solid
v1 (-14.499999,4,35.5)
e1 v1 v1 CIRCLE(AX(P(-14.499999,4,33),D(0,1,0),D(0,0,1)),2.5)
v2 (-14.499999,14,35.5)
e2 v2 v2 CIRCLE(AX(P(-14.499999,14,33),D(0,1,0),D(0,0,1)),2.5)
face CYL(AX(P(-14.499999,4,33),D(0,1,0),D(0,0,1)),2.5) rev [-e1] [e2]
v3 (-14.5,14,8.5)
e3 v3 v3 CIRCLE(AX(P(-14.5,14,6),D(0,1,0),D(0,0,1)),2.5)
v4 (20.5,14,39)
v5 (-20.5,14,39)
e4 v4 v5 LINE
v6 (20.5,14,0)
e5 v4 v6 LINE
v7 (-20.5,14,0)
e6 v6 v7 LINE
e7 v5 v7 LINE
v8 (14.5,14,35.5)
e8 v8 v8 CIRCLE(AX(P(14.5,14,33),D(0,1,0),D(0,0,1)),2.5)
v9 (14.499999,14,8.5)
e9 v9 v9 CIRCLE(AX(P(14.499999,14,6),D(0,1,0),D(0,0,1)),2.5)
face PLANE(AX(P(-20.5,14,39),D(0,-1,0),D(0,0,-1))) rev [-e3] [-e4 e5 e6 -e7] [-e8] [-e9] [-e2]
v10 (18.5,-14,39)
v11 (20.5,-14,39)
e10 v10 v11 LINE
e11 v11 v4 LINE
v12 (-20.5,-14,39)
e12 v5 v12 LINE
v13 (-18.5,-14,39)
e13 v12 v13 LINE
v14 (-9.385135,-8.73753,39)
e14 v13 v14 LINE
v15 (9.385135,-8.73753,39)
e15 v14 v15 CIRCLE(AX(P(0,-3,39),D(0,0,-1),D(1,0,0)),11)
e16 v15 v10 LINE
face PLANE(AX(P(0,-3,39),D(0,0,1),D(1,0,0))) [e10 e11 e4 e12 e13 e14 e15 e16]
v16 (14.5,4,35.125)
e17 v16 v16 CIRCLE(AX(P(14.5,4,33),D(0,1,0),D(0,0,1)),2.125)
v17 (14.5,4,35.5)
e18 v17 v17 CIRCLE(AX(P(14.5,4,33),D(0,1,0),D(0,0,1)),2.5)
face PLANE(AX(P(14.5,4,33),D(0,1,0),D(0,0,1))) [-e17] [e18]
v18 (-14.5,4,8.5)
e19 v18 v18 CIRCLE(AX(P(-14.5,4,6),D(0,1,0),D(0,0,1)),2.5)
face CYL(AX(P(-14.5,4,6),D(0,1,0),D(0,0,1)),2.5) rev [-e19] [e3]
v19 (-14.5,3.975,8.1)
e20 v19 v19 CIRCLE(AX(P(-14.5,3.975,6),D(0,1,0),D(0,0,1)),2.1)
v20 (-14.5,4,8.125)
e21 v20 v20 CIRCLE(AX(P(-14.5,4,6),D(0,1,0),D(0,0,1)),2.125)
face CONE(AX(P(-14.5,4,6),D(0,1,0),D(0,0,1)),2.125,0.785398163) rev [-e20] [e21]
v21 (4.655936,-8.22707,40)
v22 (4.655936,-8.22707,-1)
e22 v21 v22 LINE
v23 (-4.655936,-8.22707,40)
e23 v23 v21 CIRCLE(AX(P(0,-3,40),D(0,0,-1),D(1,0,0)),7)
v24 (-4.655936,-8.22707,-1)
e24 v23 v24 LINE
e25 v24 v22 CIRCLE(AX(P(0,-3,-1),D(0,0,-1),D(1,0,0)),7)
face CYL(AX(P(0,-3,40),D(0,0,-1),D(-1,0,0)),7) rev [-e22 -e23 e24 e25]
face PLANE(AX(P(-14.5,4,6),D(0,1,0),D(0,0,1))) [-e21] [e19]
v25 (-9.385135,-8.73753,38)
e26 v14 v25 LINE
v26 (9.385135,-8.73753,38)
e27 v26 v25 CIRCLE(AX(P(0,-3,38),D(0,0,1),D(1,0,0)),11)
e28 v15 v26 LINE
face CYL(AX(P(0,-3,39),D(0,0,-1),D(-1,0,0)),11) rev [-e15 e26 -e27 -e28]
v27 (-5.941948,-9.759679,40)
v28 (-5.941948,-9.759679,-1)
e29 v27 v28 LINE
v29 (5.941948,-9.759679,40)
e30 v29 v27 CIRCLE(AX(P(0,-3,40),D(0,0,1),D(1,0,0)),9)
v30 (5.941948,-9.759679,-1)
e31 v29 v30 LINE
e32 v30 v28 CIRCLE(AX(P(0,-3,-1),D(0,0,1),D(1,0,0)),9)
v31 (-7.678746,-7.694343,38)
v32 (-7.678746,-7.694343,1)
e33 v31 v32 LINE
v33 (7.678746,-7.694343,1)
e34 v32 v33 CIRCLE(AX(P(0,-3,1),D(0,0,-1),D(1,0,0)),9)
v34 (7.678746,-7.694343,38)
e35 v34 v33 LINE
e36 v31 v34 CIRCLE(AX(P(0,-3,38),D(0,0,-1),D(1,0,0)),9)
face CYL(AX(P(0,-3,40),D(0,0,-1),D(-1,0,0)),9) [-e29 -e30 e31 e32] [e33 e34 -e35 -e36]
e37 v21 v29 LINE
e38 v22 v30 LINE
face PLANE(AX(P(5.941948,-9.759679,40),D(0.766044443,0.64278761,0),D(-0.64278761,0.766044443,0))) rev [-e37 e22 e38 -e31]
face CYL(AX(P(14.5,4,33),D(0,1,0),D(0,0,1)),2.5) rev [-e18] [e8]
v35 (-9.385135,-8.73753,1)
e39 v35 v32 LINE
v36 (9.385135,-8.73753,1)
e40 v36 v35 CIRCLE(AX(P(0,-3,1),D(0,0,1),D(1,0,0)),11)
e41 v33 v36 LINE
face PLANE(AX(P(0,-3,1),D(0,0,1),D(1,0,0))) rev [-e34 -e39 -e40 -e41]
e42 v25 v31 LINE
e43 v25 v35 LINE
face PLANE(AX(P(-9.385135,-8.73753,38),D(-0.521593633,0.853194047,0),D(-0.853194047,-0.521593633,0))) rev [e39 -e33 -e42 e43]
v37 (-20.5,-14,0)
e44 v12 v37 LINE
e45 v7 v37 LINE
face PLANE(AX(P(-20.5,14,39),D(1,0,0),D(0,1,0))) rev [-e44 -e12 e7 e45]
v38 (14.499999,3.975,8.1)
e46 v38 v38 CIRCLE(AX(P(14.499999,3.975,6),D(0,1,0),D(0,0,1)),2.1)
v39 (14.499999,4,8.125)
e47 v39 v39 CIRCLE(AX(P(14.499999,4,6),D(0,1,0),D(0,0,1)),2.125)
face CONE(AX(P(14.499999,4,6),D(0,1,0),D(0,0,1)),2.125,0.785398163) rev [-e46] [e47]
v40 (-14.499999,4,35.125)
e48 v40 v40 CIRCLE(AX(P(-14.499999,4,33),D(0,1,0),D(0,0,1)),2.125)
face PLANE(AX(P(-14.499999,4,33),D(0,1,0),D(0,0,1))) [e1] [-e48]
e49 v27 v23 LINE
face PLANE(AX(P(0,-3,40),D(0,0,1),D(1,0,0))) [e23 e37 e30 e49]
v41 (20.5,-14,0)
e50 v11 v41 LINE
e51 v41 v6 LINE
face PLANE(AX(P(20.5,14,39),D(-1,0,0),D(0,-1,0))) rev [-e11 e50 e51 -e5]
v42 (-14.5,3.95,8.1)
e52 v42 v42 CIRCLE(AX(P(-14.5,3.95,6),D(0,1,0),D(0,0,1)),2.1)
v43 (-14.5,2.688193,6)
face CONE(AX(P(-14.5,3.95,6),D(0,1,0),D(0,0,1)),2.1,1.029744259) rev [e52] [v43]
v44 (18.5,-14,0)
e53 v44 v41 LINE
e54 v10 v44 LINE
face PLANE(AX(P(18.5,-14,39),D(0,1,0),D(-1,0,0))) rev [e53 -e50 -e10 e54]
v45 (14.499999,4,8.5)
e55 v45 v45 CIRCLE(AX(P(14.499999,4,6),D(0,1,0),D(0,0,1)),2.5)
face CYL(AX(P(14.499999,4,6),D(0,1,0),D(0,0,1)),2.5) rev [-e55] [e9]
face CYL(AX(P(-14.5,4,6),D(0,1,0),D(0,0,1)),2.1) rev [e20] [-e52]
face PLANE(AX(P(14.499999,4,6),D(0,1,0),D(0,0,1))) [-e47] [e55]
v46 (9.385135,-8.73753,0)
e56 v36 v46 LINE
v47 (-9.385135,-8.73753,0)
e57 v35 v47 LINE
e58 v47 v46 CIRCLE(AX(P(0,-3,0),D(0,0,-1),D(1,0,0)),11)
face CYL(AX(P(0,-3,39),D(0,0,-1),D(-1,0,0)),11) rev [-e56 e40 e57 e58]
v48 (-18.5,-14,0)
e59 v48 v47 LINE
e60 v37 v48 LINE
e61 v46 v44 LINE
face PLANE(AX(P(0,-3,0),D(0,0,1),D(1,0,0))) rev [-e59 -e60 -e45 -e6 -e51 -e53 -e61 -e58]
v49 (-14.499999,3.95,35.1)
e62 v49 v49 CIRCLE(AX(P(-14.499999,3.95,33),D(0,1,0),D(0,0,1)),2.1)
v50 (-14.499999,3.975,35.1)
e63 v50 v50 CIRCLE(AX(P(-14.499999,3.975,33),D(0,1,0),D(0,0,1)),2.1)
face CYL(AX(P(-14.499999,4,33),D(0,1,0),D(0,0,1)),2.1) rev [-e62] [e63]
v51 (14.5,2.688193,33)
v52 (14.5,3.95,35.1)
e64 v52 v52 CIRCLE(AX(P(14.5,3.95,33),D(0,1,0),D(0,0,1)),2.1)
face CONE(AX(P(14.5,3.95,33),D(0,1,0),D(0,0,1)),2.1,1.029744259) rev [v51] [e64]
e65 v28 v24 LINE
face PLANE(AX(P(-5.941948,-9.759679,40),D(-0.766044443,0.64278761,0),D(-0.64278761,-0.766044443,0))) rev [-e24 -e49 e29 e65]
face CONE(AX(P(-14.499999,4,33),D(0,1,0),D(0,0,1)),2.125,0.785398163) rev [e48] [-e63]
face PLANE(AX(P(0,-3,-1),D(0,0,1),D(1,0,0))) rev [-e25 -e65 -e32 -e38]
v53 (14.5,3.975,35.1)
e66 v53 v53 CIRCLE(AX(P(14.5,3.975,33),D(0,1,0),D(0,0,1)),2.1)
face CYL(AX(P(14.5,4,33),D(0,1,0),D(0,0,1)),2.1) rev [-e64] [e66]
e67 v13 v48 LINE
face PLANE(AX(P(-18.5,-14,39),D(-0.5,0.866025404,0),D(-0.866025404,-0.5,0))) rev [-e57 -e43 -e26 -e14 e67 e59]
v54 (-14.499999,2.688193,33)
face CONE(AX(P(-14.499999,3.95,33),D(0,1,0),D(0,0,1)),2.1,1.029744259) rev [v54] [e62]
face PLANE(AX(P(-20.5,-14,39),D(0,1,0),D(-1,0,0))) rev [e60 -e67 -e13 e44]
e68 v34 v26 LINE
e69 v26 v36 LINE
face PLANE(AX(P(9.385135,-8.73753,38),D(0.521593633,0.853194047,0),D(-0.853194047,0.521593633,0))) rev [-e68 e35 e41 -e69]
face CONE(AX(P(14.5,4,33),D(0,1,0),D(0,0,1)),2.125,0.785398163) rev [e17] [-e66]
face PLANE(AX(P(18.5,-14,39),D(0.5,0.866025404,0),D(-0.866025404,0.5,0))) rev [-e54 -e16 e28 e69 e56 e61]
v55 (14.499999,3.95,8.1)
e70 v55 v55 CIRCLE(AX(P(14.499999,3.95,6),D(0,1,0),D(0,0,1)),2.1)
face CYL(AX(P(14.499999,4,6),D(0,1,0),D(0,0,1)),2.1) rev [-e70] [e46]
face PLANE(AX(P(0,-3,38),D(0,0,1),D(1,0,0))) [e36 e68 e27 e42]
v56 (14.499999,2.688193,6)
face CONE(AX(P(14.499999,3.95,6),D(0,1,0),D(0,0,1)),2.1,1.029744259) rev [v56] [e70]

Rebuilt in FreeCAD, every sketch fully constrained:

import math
import FreeCAD as App
import Part
import Sketcher

V = App.Vector
Q = App.Units.Quantity


def add_polygon(sketch, points):
    """Adds a closed chain of lines whose ends are joined by coincident constraints."""
    first, n = sketch.GeometryCount, len(points)
    for a, b in zip(points, points[1:] + points[:1]):
        sketch.addGeometry(Part.LineSegment(App.Vector(*a, 0), App.Vector(*b, 0)), False)
    for i in range(n):
        sketch.addConstraint(Sketcher.Constraint("Coincident", first + i, 2, first + (i + 1) % n, 1))

doc = App.newDocument("Part")
params = doc.addObject("Spreadsheet::Sheet", "Params")
for row, (alias, value) in enumerate([
    ("sketch1_radius", "11 mm"),
    ("sketch1_width", "41 mm"),
    ("sketch1_width2", "2 mm"),
    ("sketch1_height", "28 mm"),
    ("pad1_length", "39 mm"),
    ("sketch2_radius", "9 mm"),
    ("sketch2_radius2", "11 mm"),
    ("pad2_length", "37 mm"),
    ("sketch3_radius", "7 mm"),
    ("sketch3_radius2", "9 mm"),
    ("pad3_length", "41 mm"),
    ("sketch4_diameter", "5 mm"),
    ("pocket1_length", "10 mm"),
    ("groove_angle", "360 deg"),
    ("linearpattern_pitch", "27 mm"),
    ("linearpattern2_pitch", "39.623224 mm"),
    ("linearpattern3_pitch", "28.999999 mm"),
], start=1):
    params.set(f"A{row}", alias)
    params.set(f"B{row}", "=" + value)
    params.setAlias(f"B{row}", alias)

body = doc.addObject("PartDesign::Body", "Body")

sketch1 = body.newObject("Sketcher::SketchObject", "Sketch")
sketch1.AttachmentSupport = (doc.getObject("XY_Plane"), [""])
sketch1.MapMode = "FlatFace"
sketch1.addGeometry([
    Part.LineSegment(V(20.5, 14, 0), V(-20.5, 14, 0)),
    Part.LineSegment(V(-20.5, 14, 0), V(-20.5, -14, 0)),
    Part.LineSegment(V(-20.5, -14, 0), V(-18.5, -14, 0)),
    Part.LineSegment(V(-18.5, -14, 0), V(-9.385135, -8.73753, 0)),
    Part.ArcOfCircle(Part.Circle(V(0, -3, 0), V(0, 0, 1), 11), math.radians(-31.43921), math.radians(211.43921)),
    Part.LineSegment(V(9.385135, -8.73753, 0), V(18.5, -14, 0)),
    Part.LineSegment(V(18.5, -14, 0), V(20.5, -14, 0)),
    Part.LineSegment(V(20.5, -14, 0), V(20.5, 14, 0)),
], False)
sketch1.addConstraint([
    Sketcher.Constraint("Coincident", 0, 2, 1, 1),
    Sketcher.Constraint("Coincident", 1, 2, 2, 1),
    Sketcher.Constraint("Coincident", 2, 2, 3, 1),
    Sketcher.Constraint("Coincident", 3, 2, 4, 2),
    Sketcher.Constraint("Coincident", 4, 1, 5, 1),
    Sketcher.Constraint("Coincident", 5, 2, 6, 1),
    Sketcher.Constraint("Coincident", 6, 2, 7, 1),
    Sketcher.Constraint("Coincident", 7, 2, 0, 1),
    Sketcher.Constraint("Horizontal", 0),
    Sketcher.Constraint("Vertical", 1),
    Sketcher.Constraint("Horizontal", 2),
    Sketcher.Constraint("Horizontal", 6),
    Sketcher.Constraint("Vertical", 7),
    Sketcher.Constraint("Symmetric", 0, 2, 6, 2, -1, 1),
    Sketcher.Constraint("Symmetric", 3, 2, 4, 1, -2),
    Sketcher.Constraint("Symmetric", 2, 2, 5, 2, -2),
    Sketcher.Constraint("Radius", 4, 11.0),
    Sketcher.Constraint("DistanceX", 0, 2, 0, 1, 41.0),
    Sketcher.Constraint("DistanceX", 2, 1, 2, 2, 2.0),
    Sketcher.Constraint("DistanceY", 1, 2, 1, 1, 28.0),
    Sketcher.Constraint("Angle", 3, Q("30 deg")),
    Sketcher.Constraint("DistanceY", 4, 3, -1, 1, 3.0),
])
sketch1.setExpression("Constraints[16]", "Params.sketch1_radius")
sketch1.setExpression("Constraints[17]", "Params.sketch1_width")
sketch1.setExpression("Constraints[18]", "Params.sketch1_width2")
sketch1.setExpression("Constraints[19]", "Params.sketch1_height")
pad1 = body.newObject("PartDesign::Pad", "Pad")
pad1.Profile = sketch1
pad1.setExpression("Length", "Params.pad1_length")
body2 = doc.addObject("PartDesign::Body", "Body001")

sketch2 = body2.newObject("Sketcher::SketchObject", "Sketch001")
sketch2.AttachmentSupport = (doc.getObject("XY_Plane001"), [""])
sketch2.MapMode = "FlatFace"
sketch2.AttachmentOffset = App.Placement(V(0, 0, 1), App.Rotation())
sketch2.addGeometry([
    Part.LineSegment(V(-9.385135, -8.73753, 0), V(-7.678746, -7.694343, 0)),
    Part.ArcOfCircle(Part.Circle(V(0, -3, 0), V(0, 0, 1), 9), math.radians(-31.43921), math.radians(211.43921)),
    Part.LineSegment(V(7.678746, -7.694343, 0), V(9.385135, -8.73753, 0)),
    Part.ArcOfCircle(Part.Circle(V(0, -3, 0), V(0, 0, 1), 11), math.radians(-31.43921), math.radians(211.43921)),
], False)
sketch2.addConstraint([
    Sketcher.Constraint("Coincident", 0, 2, 1, 2),
    Sketcher.Constraint("Coincident", 1, 1, 2, 1),
    Sketcher.Constraint("Coincident", 2, 2, 3, 1),
    Sketcher.Constraint("Coincident", 3, 2, 0, 1),
    Sketcher.Constraint("Coincident", 3, 3, 1, 3),
    Sketcher.Constraint("Symmetric", 0, 2, 1, 1, -2),
    Sketcher.Constraint("Horizontal", 2, 2, 3, 2),
    Sketcher.Constraint("Radius", 1, 9.0),
    Sketcher.Constraint("Radius", 3, 11.0),
    Sketcher.Constraint("DistanceY", 1, 3, -1, 1, 3.0),
    Sketcher.Constraint("DistanceY", 2, 2, -1, 1, 8.73753),
    Sketcher.Constraint("DistanceX", 1, 1, 2, 2, 1.706388),
])
sketch2.setExpression("Constraints[7]", "Params.sketch2_radius")
sketch2.setExpression("Constraints[8]", "Params.sketch2_radius2")
pad2 = body2.newObject("PartDesign::Pad", "Pad001")
pad2.Profile = sketch2
pad2.setExpression("Length", "Params.pad2_length")
doc.recompute()

boolean = body.newObject("PartDesign::Boolean", "Boolean")
boolean.Type = "Fuse"
boolean.addObjects([body2])

sketch3 = body.newObject("Sketcher::SketchObject", "Sketch002")
sketch3.AttachmentSupport = (doc.getObject("XY_Plane"), [""])
sketch3.MapMode = "FlatFace"
sketch3.AttachmentOffset = App.Placement(V(0, 0, -1), App.Rotation())
sketch3.addGeometry([
    Part.LineSegment(V(-5.941948, -9.759679, 0), V(-4.655936, -8.22707, 0)),
    Part.ArcOfCircle(Part.Circle(V(0, -3, 0), V(0, 0, 1), 7), math.radians(-48.307412), math.radians(228.307412)),
    Part.LineSegment(V(4.655936, -8.22707, 0), V(5.941948, -9.759679, 0)),
    Part.ArcOfCircle(Part.Circle(V(0, -3, 0), V(0, 0, 1), 9), math.radians(-48.683619), math.radians(228.683619)),
], False)
sketch3.addConstraint([
    Sketcher.Constraint("Coincident", 0, 2, 1, 2),
    Sketcher.Constraint("Coincident", 1, 1, 2, 1),
    Sketcher.Constraint("Coincident", 2, 2, 3, 1),
    Sketcher.Constraint("Coincident", 3, 2, 0, 1),
    Sketcher.Constraint("Coincident", 3, 3, 1, 3),
    Sketcher.Constraint("Symmetric", 0, 2, 1, 1, -2),
    Sketcher.Constraint("Horizontal", 2, 2, 3, 2),
    Sketcher.Constraint("Radius", 1, 7.0),
    Sketcher.Constraint("Radius", 3, 9.0),
    Sketcher.Constraint("Angle", 0, Q("50 deg")),
    Sketcher.Constraint("DistanceY", 1, 3, -1, 1, 3.0),
    Sketcher.Constraint("Distance", 0, 2.000679),
])
sketch3.setExpression("Constraints[7]", "Params.sketch3_radius")
sketch3.setExpression("Constraints[8]", "Params.sketch3_radius2")
pad3 = body.newObject("PartDesign::Pad", "Pad002")
pad3.Profile = sketch3
pad3.setExpression("Length", "Params.pad3_length")

sketch4 = body.newObject("Sketcher::SketchObject", "Sketch003")
sketch4.AttachmentSupport = (doc.getObject("XZ_Plane"), [""])
sketch4.MapMode = "FlatFace"
sketch4.AttachmentOffset = App.Placement(V(0, 0, -14), App.Rotation())
sketch4.addGeometry([
    Part.Circle(V(-14.5, 6, 0), V(0, 0, 1), 2.5),
    Part.Circle(V(14.499999, 6, 0), V(0, 0, 1), 2.5),
    Part.Circle(V(14.5, 33, 0), V(0, 0, 1), 2.5),
    Part.Circle(V(-14.499999, 33, 0), V(0, 0, 1), 2.5),
], False)
sketch4.addConstraint([
    Sketcher.Constraint("Equal", 0, 1),
    Sketcher.Constraint("Equal", 1, 2),
    Sketcher.Constraint("Equal", 2, 3),
    Sketcher.Constraint("Symmetric", 0, 3, 1, 3, -2),
    Sketcher.Constraint("Symmetric", 2, 3, 3, 3, -2),
    Sketcher.Constraint("Vertical", 1, 3, 2, 3),
    Sketcher.Constraint("Diameter", 0, 5.0),
    Sketcher.Constraint("DistanceY", -1, 1, 0, 3, 6.0),
    Sketcher.Constraint("DistanceY", -1, 1, 2, 3, 33.0),
    Sketcher.Constraint("DistanceX", 0, 3, 1, 3, 28.999999),
])
sketch4.setExpression("Constraints[6]", "Params.sketch4_diameter")
pocket1 = body.newObject("PartDesign::Pocket", "Pocket")
pocket1.Profile = sketch4
pocket1.setExpression("Length", "Params.pocket1_length")
pocket1.Reversed = True

sketch5 = body.newObject("Sketcher::SketchObject", "Sketch004")
sketch5.AttachmentSupport = (doc.getObject("YZ_Plane"), [""])
sketch5.MapMode = "FlatFace"
sketch5.AttachmentOffset = App.Placement(V(0, 0, -14.499999), App.Rotation())
add_polygon(sketch5, [(2.688193, 33), (4, 33), (4, 35.125), (3.975, 35.1), (3.95, 35.1)])
sketch5.addGeometry(Part.LineSegment(V(4, 33, 0), V(2.688193, 33, 0)), True)
sketch5.addConstraint([
    Sketcher.Constraint("Horizontal", 0),
    Sketcher.Constraint("Vertical", 1),
    Sketcher.Constraint("Horizontal", 3),
    Sketcher.Constraint("Horizontal", 5),
    Sketcher.Constraint("Coincident", 5, 1, 0, 2),
    Sketcher.Constraint("Equal", 0, 5),
    Sketcher.Constraint("Angle", 2, Q("-135 deg")),
    Sketcher.Constraint("Angle", 4, Q("-121 deg")),
    Sketcher.Constraint("DistanceX", -1, 1, 0, 2, 4.0),
    Sketcher.Constraint("DistanceY", -1, 1, 0, 2, 33.0),
    Sketcher.Constraint("DistanceY", -1, 1, 2, 2, 35.1),
    Sketcher.Constraint("DistanceX", 3, 2, 3, 1, 0.025),
    Sketcher.Constraint("DistanceY", 1, 1, 1, 2, 2.125),
])
groove = body.newObject("PartDesign::Groove", "Groove")
groove.Profile = sketch5
groove.ReferenceAxis = (sketch5, ["Axis0"])
groove.setExpression("Angle", "Params.groove_angle")
doc.recompute()

linearpattern = body.newObject("PartDesign::LinearPattern", "LinearPattern")
linearpattern.Originals = [groove]
linearpattern.Direction = (doc.getObject("Z_Axis"), [""])
linearpattern.Mode = "offset"
linearpattern.setExpression("Offset", "Params.linearpattern_pitch")
linearpattern.Occurrences = 2
linearpattern.Reversed = True
body.Tip = linearpattern
doc.recompute()

datumline = body.newObject("PartDesign::Line", "DatumLine")
datumline.Placement = App.Placement(V(0, 0, 0), App.Rotation(V(0, 0, 1), V(0.731893944, 0, -0.681418561)))
linearpattern2 = body.newObject("PartDesign::LinearPattern", "LinearPattern001")
linearpattern2.Originals = [groove]
linearpattern2.Direction = (datumline, [""])
linearpattern2.Mode = "offset"
linearpattern2.setExpression("Offset", "Params.linearpattern2_pitch")
linearpattern2.Occurrences = 2
body.Tip = linearpattern2
doc.recompute()

linearpattern3 = body.newObject("PartDesign::LinearPattern", "LinearPattern002")
linearpattern3.Originals = [groove]
linearpattern3.Direction = (doc.getObject("X_Axis"), [""])
linearpattern3.Mode = "offset"
linearpattern3.setExpression("Offset", "Params.linearpattern3_pitch")
linearpattern3.Occurrences = 2
body.Tip = linearpattern3

doc.recompute()
